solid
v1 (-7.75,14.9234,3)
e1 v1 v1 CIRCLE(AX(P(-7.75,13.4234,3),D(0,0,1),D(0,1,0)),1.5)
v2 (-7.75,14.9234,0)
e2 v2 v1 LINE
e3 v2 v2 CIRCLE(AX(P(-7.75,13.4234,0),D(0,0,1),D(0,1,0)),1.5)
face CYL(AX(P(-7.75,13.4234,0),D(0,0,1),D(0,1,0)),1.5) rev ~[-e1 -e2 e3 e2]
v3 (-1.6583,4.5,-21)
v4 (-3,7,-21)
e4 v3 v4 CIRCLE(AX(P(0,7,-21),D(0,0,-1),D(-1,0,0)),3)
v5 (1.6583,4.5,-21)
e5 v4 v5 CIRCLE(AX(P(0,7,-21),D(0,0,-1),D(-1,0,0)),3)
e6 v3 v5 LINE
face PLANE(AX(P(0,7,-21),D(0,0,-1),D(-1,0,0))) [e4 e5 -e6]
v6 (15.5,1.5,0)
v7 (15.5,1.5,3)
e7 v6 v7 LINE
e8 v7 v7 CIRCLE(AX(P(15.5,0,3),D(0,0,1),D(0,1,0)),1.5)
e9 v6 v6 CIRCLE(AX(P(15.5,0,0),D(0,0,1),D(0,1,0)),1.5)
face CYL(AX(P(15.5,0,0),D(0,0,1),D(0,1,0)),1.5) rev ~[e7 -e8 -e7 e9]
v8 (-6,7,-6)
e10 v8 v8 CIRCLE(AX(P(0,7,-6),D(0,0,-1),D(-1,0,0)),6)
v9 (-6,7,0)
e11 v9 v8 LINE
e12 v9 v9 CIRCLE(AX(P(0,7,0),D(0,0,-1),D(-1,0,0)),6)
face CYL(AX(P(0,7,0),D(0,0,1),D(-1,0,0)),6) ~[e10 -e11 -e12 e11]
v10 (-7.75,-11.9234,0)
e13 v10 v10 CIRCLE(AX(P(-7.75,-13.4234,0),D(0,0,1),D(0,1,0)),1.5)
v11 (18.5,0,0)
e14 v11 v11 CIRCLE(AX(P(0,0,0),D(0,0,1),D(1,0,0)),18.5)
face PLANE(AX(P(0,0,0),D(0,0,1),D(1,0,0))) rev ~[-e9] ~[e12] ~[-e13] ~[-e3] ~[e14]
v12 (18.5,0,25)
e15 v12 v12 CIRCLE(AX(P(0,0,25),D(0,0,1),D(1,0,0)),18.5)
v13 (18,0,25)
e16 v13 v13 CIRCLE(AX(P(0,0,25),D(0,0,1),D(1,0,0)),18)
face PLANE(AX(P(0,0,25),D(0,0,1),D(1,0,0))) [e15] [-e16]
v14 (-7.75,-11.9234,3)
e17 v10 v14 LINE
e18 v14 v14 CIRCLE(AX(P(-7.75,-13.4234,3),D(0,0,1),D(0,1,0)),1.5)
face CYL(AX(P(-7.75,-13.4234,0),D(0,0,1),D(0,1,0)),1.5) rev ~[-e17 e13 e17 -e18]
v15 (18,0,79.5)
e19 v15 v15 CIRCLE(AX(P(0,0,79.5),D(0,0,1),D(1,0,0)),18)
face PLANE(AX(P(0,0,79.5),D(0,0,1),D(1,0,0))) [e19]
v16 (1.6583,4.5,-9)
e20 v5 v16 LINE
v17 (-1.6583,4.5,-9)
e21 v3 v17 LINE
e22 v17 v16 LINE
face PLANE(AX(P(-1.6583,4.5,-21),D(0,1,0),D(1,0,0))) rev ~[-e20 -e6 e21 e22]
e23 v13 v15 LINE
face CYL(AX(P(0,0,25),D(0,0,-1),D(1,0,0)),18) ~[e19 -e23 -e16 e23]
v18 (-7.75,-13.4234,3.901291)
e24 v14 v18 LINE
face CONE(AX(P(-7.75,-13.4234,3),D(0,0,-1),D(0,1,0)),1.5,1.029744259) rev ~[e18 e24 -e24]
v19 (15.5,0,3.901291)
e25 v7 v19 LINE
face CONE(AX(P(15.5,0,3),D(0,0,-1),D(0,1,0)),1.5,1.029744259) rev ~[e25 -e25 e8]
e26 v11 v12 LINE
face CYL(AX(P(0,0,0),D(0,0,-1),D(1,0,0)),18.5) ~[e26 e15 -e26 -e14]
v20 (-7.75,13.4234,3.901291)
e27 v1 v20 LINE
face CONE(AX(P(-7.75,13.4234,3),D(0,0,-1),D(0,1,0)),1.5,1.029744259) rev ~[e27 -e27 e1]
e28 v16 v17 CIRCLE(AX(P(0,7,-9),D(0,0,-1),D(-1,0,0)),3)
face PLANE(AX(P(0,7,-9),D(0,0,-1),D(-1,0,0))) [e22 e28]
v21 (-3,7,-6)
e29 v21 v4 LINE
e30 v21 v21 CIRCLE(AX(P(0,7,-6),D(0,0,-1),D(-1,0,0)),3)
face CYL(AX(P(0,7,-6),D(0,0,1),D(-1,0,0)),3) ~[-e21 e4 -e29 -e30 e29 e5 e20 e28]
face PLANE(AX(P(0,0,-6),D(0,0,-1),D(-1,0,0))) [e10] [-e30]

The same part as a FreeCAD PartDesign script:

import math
import FreeCAD as App
import Part
import Sketcher
Q = App.Units.Quantity

doc = App.newDocument("Part")
body = doc.addObject("PartDesign::Body", "Body")

sketch1 = doc.addObject("Sketcher::SketchObject", "Sketch")
body.addObject(sketch1)
sketch1.AttachmentSupport = (doc.XY_Plane, [""])
sketch1.MapMode = "FlatFace"
sketch1.addGeometry(Part.Circle(App.Vector(0, 0, 0), App.Vector(0, 0, 1), 18), False)
sketch1.addConstraint([
    Sketcher.Constraint("Coincident", 0, 3, -1, 1),
    Sketcher.Constraint("Diameter", 0, Q("37 mm")),
])
pad1 = doc.addObject("PartDesign::Pad", "Pad")
body.addObject(pad1)
pad1.Profile = sketch1
pad1.Length = 25

sketch2 = doc.addObject("Sketcher::SketchObject", "Sketch001")
body.addObject(sketch2)
sketch2.AttachmentSupport = (doc.XY_Plane, [""])
sketch2.MapMode = "FlatFace"
sketch2.AttachmentOffset = App.Placement(App.Vector(0, 0, 25), App.Rotation())
sketch2.addGeometry(Part.Circle(App.Vector(0, 0, 0), App.Vector(0, 0, 1), 18), False)
sketch2.addConstraint([
    Sketcher.Constraint("Coincident", 0, 3, -1, 1),
    Sketcher.Constraint("Diameter", 0, Q("36 mm")),
])
pad2 = doc.addObject("PartDesign::Pad", "Pad001")
body.addObject(pad2)
pad2.Profile = sketch2
pad2.Length = 54.5

sketch3 = doc.addObject("Sketcher::SketchObject", "Sketch002")
body.addObject(sketch3)
sketch3.AttachmentSupport = (doc.XY_Plane, [""])
sketch3.MapMode = "FlatFace"
sketch3.addGeometry(Part.Circle(App.Vector(0, 7, 0), App.Vector(0, 0, 1), 6), False)
sketch3.addConstraint([
    Sketcher.Constraint("PointOnObject", 0, 3, -2),
    Sketcher.Constraint("Diameter", 0, Q("12 mm")),
    Sketcher.Constraint("DistanceY", -1, 1, 0, 3, Q("7 mm")),
])
pad3 = doc.addObject("PartDesign::Pad", "Pad002")
body.addObject(pad3)
pad3.Profile = sketch3
pad3.Length = 6
pad3.Reversed = True

sketch4 = doc.addObject("Sketcher::SketchObject", "Sketch003")
body.addObject(sketch4)
sketch4.AttachmentSupport = (doc.XY_Plane, [""])
sketch4.MapMode = "FlatFace"
sketch4.AttachmentOffset = App.Placement(App.Vector(0, 0, -6), App.Rotation())
sketch4.addGeometry(Part.Circle(App.Vector(0, 7, 0), App.Vector(0, 0, 1), 3), False)
sketch4.addConstraint([
    Sketcher.Constraint("PointOnObject", 0, 3, -2),
    Sketcher.Constraint("Diameter", 0, Q("6 mm")),
    Sketcher.Constraint("DistanceY", -1, 1, 0, 3, Q("7 mm")),
])
pad4 = doc.addObject("PartDesign::Pad", "Pad003")
body.addObject(pad4)
pad4.Profile = sketch4
pad4.Length = 15
pad4.Reversed = True

sketch5 = doc.addObject("Sketcher::SketchObject", "Sketch004")
body.addObject(sketch5)
sketch5.AttachmentSupport = (doc.XY_Plane, [""])
sketch5.MapMode = "FlatFace"
sketch5.addGeometry([
    Part.Circle(App.Vector(15.5, 0, 0), App.Vector(0, 0, 1), 1.5),
    Part.Circle(App.Vector(-7.8, -13.4, 0), App.Vector(0, 0, 1), 1.5),
    Part.Circle(App.Vector(-7.8, 13.4, 0), App.Vector(0, 0, 1), 1.5),
], False)
sketch5.addConstraint([
    Sketcher.Constraint("Equal", 0, 1),
    Sketcher.Constraint("Equal", 1, 2),
    Sketcher.Constraint("Symmetric", 1, 3, 2, 3, -1),
    Sketcher.Constraint("PointOnObject", 0, 3, -1),
    Sketcher.Constraint("Diameter", 0, Q("3 mm")),
    Sketcher.Constraint("DistanceX", -1, 1, 0, 3, Q("15.5 mm")),
    Sketcher.Constraint("DistanceX", 1, 3, -1, 1, Q("7.75 mm")),
    Sketcher.Constraint("DistanceY", 1, 3, -1, 1, Q("13.4234 mm")),
])
doc.recompute()
hole = doc.addObject("PartDesign::Hole", "Hole")
body.addObject(hole)
hole.Profile = sketch5
hole.ThreadType = "None"
hole.Diameter = 3
hole.DepthType = "Dimension"
hole.Depth = 3
hole.DrillPoint = "Angled"
hole.DrillPointAngle = 118
hole.Reversed = True

sketch6 = doc.addObject("Sketcher::SketchObject", "Sketch005")
body.addObject(sketch6)
sketch6.AttachmentSupport = (doc.XY_Plane, [""])
sketch6.MapMode = "FlatFace"
sketch6.AttachmentOffset = App.Placement(App.Vector(0, 0, -21), App.Rotation())
sketch6.addGeometry([
    Part.ArcOfCircle(Part.Circle(App.Vector(0, 7, 0), App.Vector(0, 0, 1), 3), math.radians(-124), math.radians(-56)),
    Part.LineSegment(App.Vector(1.7, 4.5, 0), App.Vector(-1.7, 4.5, 0)),
], False)
sketch6.addConstraint([
    Sketcher.Constraint("Coincident", 0, 1, 1, 2),
    Sketcher.Constraint("Coincident", 1, 1, 0, 2),
    Sketcher.Constraint("Horizontal", 1),
    Sketcher.Constraint("PointOnObject", 0, 3, -2),
    Sketcher.Constraint("Radius", 0, Q("3 mm")),
    Sketcher.Constraint("DistanceY", 0, 1, 0, 3, Q("2.5 mm")),
    Sketcher.Constraint("DistanceY", -1, 1, 0, 3, Q("7 mm")),
])
pocket1 = doc.addObject("PartDesign::Pocket", "Pocket")
body.addObject(pocket1)
pocket1.Profile = sketch6
pocket1.Length = 12
pocket1.Reversed = True

doc.recompute()
